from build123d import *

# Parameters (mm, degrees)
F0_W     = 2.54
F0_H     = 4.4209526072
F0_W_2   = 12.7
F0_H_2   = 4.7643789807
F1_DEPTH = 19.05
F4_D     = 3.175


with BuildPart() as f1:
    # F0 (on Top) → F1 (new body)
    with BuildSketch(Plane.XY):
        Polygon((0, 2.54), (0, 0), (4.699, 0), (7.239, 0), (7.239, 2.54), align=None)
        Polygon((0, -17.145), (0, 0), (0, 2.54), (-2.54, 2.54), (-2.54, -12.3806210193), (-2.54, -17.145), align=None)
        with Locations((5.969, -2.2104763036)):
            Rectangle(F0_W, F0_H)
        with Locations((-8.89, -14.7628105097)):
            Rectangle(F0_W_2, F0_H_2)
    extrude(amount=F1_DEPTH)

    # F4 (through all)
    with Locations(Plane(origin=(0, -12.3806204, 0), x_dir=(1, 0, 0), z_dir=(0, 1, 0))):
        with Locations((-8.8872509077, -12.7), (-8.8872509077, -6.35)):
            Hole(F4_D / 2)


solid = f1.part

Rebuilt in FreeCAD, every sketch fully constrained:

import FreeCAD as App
import Part
import Sketcher
from FreeCAD import Vector
Q = App.Units.Quantity

doc = App.newDocument("Part")
body = doc.addObject("PartDesign::Body", "Body")

sketch1 = body.newObject("Sketcher::SketchObject", "Sketch")
sketch1.AttachmentSupport = (doc.getObject("XY_Plane"), [""])
sketch1.MapMode = "FlatFace"
sketch1.addGeometry([
    Part.LineSegment(Vector(0, 0, 0), Vector(4.7, 0, 0)),
    Part.LineSegment(Vector(4.7, 0, 0), Vector(4.7, -4.4, 0)),
    Part.LineSegment(Vector(4.7, -4.4, 0), Vector(7.2, -4.4, 0)),
    Part.LineSegment(Vector(7.2, -4.4, 0), Vector(7.2, 2.5, 0)),
    Part.LineSegment(Vector(7.2, 2.5, 0), Vector(-2.5, 2.5, 0)),
    Part.LineSegment(Vector(-2.5, 2.5, 0), Vector(-2.5, -12.4, 0)),
    Part.LineSegment(Vector(-2.5, -12.4, 0), Vector(-15.2, -12.4, 0)),
    Part.LineSegment(Vector(-15.2, -12.4, 0), Vector(-15.2, -17.1, 0)),
    Part.LineSegment(Vector(-15.2, -17.1, 0), Vector(-2.5, -17.1, 0)),
    Part.LineSegment(Vector(-2.5, -17.1, 0), Vector(0, -17.1, 0)),
    Part.LineSegment(Vector(0, -17.1, 0), Vector(0, 0, 0)),
], False)
sketch1.addConstraint([
    Sketcher.Constraint("Coincident", 0, 2, 1, 1),
    Sketcher.Constraint("Coincident", 1, 2, 2, 1),
    Sketcher.Constraint("Coincident", 2, 2, 3, 1),
    Sketcher.Constraint("Coincident", 3, 2, 4, 1),
    Sketcher.Constraint("Coincident", 4, 2, 5, 1),
    Sketcher.Constraint("Coincident", 5, 2, 6, 1),
    Sketcher.Constraint("Coincident", 6, 2, 7, 1),
    Sketcher.Constraint("Coincident", 7, 2, 8, 1),
    Sketcher.Constraint("Coincident", 8, 2, 9, 1),
    Sketcher.Constraint("Coincident", 9, 2, 10, 1),
    Sketcher.Constraint("Coincident", 10, 2, 0, 1),
    Sketcher.Constraint("Horizontal", 0),
    Sketcher.Constraint("Vertical", 1),
    Sketcher.Constraint("Horizontal", 2),
    Sketcher.Constraint("Vertical", 3),
    Sketcher.Constraint("Horizontal", 4),
    Sketcher.Constraint("Vertical", 5),
    Sketcher.Constraint("Horizontal", 6),
    Sketcher.Constraint("Vertical", 7),
    Sketcher.Constraint("Horizontal", 8),
    Sketcher.Constraint("Horizontal", 9),
    Sketcher.Constraint("Vertical", 10),
    Sketcher.Constraint("Coincident", 10, 2, -1, 1),
    Sketcher.Constraint("Vertical", 5, 2, 8, 2),
    Sketcher.Constraint("Equal", 2, 9),
    Sketcher.Constraint("DistanceX", 2, 1, 2, 2, Q("0.1 in")),
    Sketcher.Constraint("DistanceX", 6, 2, 6, 1, Q("0.5 in")),
    Sketcher.Constraint("DistanceY", -1, 1, 3, 2, Q("0.1 in")),
    Sketcher.Constraint("DistanceX", 0, 1, 0, 2, Q("0.185 in")),
    Sketcher.Constraint("DistanceY", 10, 1, 10, 2, Q("0.675 in")),
    Sketcher.Constraint("DistanceY", 5, 2, 5, 1, Q("14.920621 mm")),
    Sketcher.Constraint("DistanceY", 1, 2, 1, 1, Q("4.420953 mm")),
])
pad1 = body.newObject("PartDesign::Pad", "Pad")
pad1.Profile = sketch1
pad1.Length = Q("0.75 in")

sketch2 = body.newObject("Sketcher::SketchObject", "Sketch001")
sketch2.AttachmentSupport = (doc.getObject("XZ_Plane"), [""])
sketch2.MapMode = "FlatFace"
sketch2.AttachmentOffset = App.Placement(Vector(0, 0, 12.38062), App.Rotation())
sketch2.addGeometry([
    Part.Circle(Vector(-8.9, 12.7, 0), Vector(0, 0, 1), 1.6),
    Part.Circle(Vector(-8.9, 6.3, 0), Vector(0, 0, 1), 1.6),
], False)
sketch2.addConstraint([
    Sketcher.Constraint("Equal", 0, 1),
    Sketcher.Constraint("Vertical", 0, 3, 1, 3),
    Sketcher.Constraint("Diameter", 0, Q("0.125 in")),
    Sketcher.Constraint("DistanceY", -1, 1, 0, 3, Q("0.5 in")),
    Sketcher.Constraint("DistanceY", -1, 1, 1, 3, Q("0.25 in")),
    Sketcher.Constraint("DistanceX", 0, 3, -1, 1, Q("8.887251 mm")),
])
doc.recompute()
hole = body.newObject("PartDesign::Hole", "Hole")
hole.Profile = sketch2
hole.ThreadType = "None"
hole.Diameter = Q("0.125 in")
hole.DepthType = "ThroughAll"
hole.Reversed = True

doc.recompute()
